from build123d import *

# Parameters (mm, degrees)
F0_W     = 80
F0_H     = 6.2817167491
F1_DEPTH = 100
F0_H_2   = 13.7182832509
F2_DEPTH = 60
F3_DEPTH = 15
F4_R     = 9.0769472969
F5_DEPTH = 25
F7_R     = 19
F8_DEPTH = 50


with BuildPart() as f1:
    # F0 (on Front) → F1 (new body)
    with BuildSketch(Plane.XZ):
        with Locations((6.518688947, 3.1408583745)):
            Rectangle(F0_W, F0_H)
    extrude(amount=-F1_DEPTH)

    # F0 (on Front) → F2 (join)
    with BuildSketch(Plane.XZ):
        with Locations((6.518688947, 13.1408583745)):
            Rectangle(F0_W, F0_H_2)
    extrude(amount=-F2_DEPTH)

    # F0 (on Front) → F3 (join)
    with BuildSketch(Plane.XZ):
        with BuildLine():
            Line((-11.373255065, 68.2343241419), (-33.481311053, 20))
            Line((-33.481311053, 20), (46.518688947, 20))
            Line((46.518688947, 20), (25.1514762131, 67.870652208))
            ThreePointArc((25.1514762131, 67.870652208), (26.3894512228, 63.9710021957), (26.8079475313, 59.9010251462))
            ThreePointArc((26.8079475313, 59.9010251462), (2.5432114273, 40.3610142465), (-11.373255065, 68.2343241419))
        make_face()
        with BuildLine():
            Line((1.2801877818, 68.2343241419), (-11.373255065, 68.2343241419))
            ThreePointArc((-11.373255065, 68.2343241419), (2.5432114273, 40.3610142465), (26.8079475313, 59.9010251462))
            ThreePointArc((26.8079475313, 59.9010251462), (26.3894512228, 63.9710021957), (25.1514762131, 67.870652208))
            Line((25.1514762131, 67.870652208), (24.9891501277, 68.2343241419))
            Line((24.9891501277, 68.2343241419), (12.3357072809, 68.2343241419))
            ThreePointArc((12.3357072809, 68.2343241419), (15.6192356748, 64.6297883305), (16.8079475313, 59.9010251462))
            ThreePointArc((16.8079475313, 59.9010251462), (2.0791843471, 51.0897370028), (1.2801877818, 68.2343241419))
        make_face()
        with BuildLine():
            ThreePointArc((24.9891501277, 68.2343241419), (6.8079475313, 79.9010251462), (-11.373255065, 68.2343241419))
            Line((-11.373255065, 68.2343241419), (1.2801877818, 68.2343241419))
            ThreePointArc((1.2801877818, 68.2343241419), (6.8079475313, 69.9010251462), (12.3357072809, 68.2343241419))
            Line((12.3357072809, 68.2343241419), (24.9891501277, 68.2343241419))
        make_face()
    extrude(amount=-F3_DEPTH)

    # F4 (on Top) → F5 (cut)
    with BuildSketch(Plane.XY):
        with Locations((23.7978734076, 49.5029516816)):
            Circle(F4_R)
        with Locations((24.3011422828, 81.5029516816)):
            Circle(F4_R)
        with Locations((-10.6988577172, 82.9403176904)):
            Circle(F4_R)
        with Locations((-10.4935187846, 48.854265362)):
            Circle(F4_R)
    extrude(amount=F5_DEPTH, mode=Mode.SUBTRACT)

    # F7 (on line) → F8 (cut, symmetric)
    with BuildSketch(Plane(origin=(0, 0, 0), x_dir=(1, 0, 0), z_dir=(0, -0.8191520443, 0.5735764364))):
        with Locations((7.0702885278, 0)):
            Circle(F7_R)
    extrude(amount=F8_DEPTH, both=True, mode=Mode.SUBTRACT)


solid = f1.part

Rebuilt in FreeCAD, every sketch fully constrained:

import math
import FreeCAD as App
import Part
import Sketcher
Q = App.Units.Quantity

doc = App.newDocument("Part")
body = doc.addObject("PartDesign::Body", "Body")

# Sketch on XZ plane
sketch1 = doc.addObject("Sketcher::SketchObject", "Sketch")
body.addObject(sketch1)
sketch1.AttachmentSupport = (doc.XZ_Plane, [""])
sketch1.MapMode = "FlatFace"
sketch1.addGeometry(Part.LineSegment(App.Vector(-33, 6, 0), App.Vector(-33, 0, 0)), False)
sketch1.addGeometry(Part.LineSegment(App.Vector(-33, 0, 0), App.Vector(47, 0, 0)), False)
sketch1.addGeometry(Part.LineSegment(App.Vector(47, 0, 0), App.Vector(47, 6, 0)), False)
sketch1.addGeometry(Part.LineSegment(App.Vector(47, 6, 0), App.Vector(-33, 6, 0)), False)
sketch1.addConstraint(Sketcher.Constraint("Coincident", 0, 2, 1, 1))
sketch1.addConstraint(Sketcher.Constraint("Coincident", 1, 2, 2, 1))
sketch1.addConstraint(Sketcher.Constraint("Coincident", 2, 2, 3, 1))
sketch1.addConstraint(Sketcher.Constraint("Coincident", 3, 2, 0, 1))
sketch1.addConstraint(Sketcher.Constraint("Vertical", 0))
sketch1.addConstraint(Sketcher.Constraint("Horizontal", 1))
sketch1.addConstraint(Sketcher.Constraint("Vertical", 2))
sketch1.addConstraint(Sketcher.Constraint("Horizontal", 3))
sketch1.addConstraint(Sketcher.Constraint("PointOnObject", 0, 2, -1))
sketch1.addConstraint(Sketcher.Constraint("DistanceX", 1, 1, 1, 2, Q("80 mm")))
sketch1.addConstraint(Sketcher.Constraint("DistanceY", 0, 2, 0, 1, Q("6.281717 mm")))
sketch1.addConstraint(Sketcher.Constraint("DistanceX", 0, 2, -1, 1, Q("33.481311 mm")))
pad1 = doc.addObject("PartDesign::Pad", "Pad")
body.addObject(pad1)
pad1.Profile = sketch1
pad1.Length = 100
pad1.Reversed = True

# Sketch on XZ plane
sketch2 = doc.addObject("Sketcher::SketchObject", "Sketch001")
body.addObject(sketch2)
sketch2.AttachmentSupport = (doc.XZ_Plane, [""])
sketch2.MapMode = "FlatFace"
sketch2.addGeometry(Part.LineSegment(App.Vector(-33, 20, 0), App.Vector(-33, 6, 0)), False)
sketch2.addGeometry(Part.LineSegment(App.Vector(-33, 6, 0), App.Vector(47, 6, 0)), False)
sketch2.addGeometry(Part.LineSegment(App.Vector(47, 6, 0), App.Vector(47, 20, 0)), False)
sketch2.addGeometry(Part.LineSegment(App.Vector(47, 20, 0), App.Vector(-33, 20, 0)), False)
sketch2.addConstraint(Sketcher.Constraint("Coincident", 0, 2, 1, 1))
sketch2.addConstraint(Sketcher.Constraint("Coincident", 1, 2, 2, 1))
sketch2.addConstraint(Sketcher.Constraint("Coincident", 2, 2, 3, 1))
sketch2.addConstraint(Sketcher.Constraint("Coincident", 3, 2, 0, 1))
sketch2.addConstraint(Sketcher.Constraint("Vertical", 0))
sketch2.addConstraint(Sketcher.Constraint("Horizontal", 1))
sketch2.addConstraint(Sketcher.Constraint("Vertical", 2))
sketch2.addConstraint(Sketcher.Constraint("Horizontal", 3))
sketch2.addConstraint(Sketcher.Constraint("DistanceX", 1, 1, 1, 2, Q("80 mm")))
sketch2.addConstraint(Sketcher.Constraint("DistanceY", -1, 1, 2, 2, Q("20 mm")))
sketch2.addConstraint(Sketcher.Constraint("DistanceY", 0, 2, 0, 1, Q("13.718283 mm")))
sketch2.addConstraint(Sketcher.Constraint("DistanceX", 0, 2, -1, 1, Q("33.481311 mm")))
pad2 = doc.addObject("PartDesign::Pad", "Pad001")
body.addObject(pad2)
pad2.Profile = sketch2
pad2.Length = 60
pad2.Reversed = True

# Sketch on XZ plane
sketch3 = doc.addObject("Sketcher::SketchObject", "Sketch002")
body.addObject(sketch3)
sketch3.AttachmentSupport = (doc.XZ_Plane, [""])
sketch3.MapMode = "FlatFace"
sketch3.addGeometry(Part.LineSegment(App.Vector(-11.37, 68.23, 0), App.Vector(-33.48, 20, 0)), False)
sketch3.addGeometry(Part.LineSegment(App.Vector(-33.48, 20, 0), App.Vector(46.52, 20, 0)), False)
sketch3.addGeometry(Part.LineSegment(App.Vector(46.52, 20, 0), App.Vector(25.15, 67.87, 0)), False)
sketch3.addGeometry(Part.LineSegment(App.Vector(25.15, 67.87, 0), App.Vector(24.99, 68.23, 0)), False)
sketch3.addGeometry(Part.ArcOfCircle(Part.Circle(App.Vector(6.81, 59.9, 0), App.Vector(0, 0, 1), 20), math.radians(25), math.radians(155)), False)
sketch3.addGeometry(Part.ArcOfCircle(Part.Circle(App.Vector(6.81, 59.9, 0), App.Vector(0, 0, 1), 10), math.radians(0), math.radians(56)), False)
sketch3.addGeometry(Part.ArcOfCircle(Part.Circle(App.Vector(6.81, 59.9, 0), App.Vector(0, 0, 1), 10), math.radians(124), math.radians(360)), False)
sketch3.addGeometry(Part.ArcOfCircle(Part.Circle(App.Vector(6.81, 59.9, 0), App.Vector(0, 0, 1), 10), math.radians(56), math.radians(124)), False)
sketch3.addConstraint(Sketcher.Constraint("Coincident", 0, 2, 1, 1))
sketch3.addConstraint(Sketcher.Constraint("Coincident", 1, 2, 2, 1))
sketch3.addConstraint(Sketcher.Constraint("Coincident", 2, 2, 3, 1))
sketch3.addConstraint(Sketcher.Constraint("Coincident", 3, 2, 4, 1))
sketch3.addConstraint(Sketcher.Constraint("Tangent", 4, 2, 0, 1))
sketch3.addConstraint(Sketcher.Constraint("Tangent", 5, 1, 6, 2))
sketch3.addConstraint(Sketcher.Constraint("Tangent", 6, 1, 7, 2))
sketch3.addConstraint(Sketcher.Constraint("Tangent", 7, 1, 5, 2))
sketch3.addConstraint(Sketcher.Constraint("Horizontal", 1))
sketch3.addConstraint(Sketcher.Constraint("Coincident", 5, 3, 4, 3))
sketch3.addConstraint(Sketcher.Constraint("Parallel", 2, 3))
sketch3.addConstraint(Sketcher.Constraint("Horizontal", 3, 2, 4, 2))
sketch3.addConstraint(Sketcher.Constraint("Horizontal", 7, 3, 5, 1))
sketch3.addConstraint(Sketcher.Constraint("Horizontal", 4, 2, 6, 1))
sketch3.addConstraint(Sketcher.Constraint("Horizontal", 6, 1, 7, 1))
sketch3.addConstraint(Sketcher.Constraint("Radius", 4, Q("20 mm")))
sketch3.addConstraint(Sketcher.Constraint("Radius", 5, Q("10 mm")))
sketch3.addConstraint(Sketcher.Constraint("DistanceX", 1, 1, 1, 2, Q("80 mm")))
sketch3.addConstraint(Sketcher.Constraint("DistanceY", -1, 1, 0, 2, Q("20 mm")))
sketch3.addConstraint(Sketcher.Constraint("DistanceY", 4, 3, 3, 2, Q("8.333299 mm")))
sketch3.addConstraint(Sketcher.Constraint("Distance", 2, Q("52.422868 mm")))
sketch3.addConstraint(Sketcher.Constraint("DistanceX", 0, 2, -1, 1, Q("33.481311 mm")))
sketch3.addConstraint(Sketcher.Constraint("DistanceX", -1, 1, 3, 2, Q("24.98915 mm")))
pad3 = doc.addObject("PartDesign::Pad", "Pad002")
body.addObject(pad3)
pad3.Profile = sketch3
pad3.Length = 15
pad3.Reversed = True

# Sketch on XY plane
sketch4 = doc.addObject("Sketcher::SketchObject", "Sketch003")
body.addObject(sketch4)
sketch4.AttachmentSupport = (doc.XY_Plane, [""])
sketch4.MapMode = "FlatFace"
sketch4.addGeometry(Part.Circle(App.Vector(24, 50, 0), App.Vector(0, 0, 1), 9), False)
sketch4.addGeometry(Part.Circle(App.Vector(24, 82, 0), App.Vector(0, 0, 1), 9), False)
sketch4.addGeometry(Part.Circle(App.Vector(-11, 83, 0), App.Vector(0, 0, 1), 9), False)
sketch4.addGeometry(Part.Circle(App.Vector(-10, 49, 0), App.Vector(0, 0, 1), 9), False)
sketch4.addConstraint(Sketcher.Constraint("Equal", 0, 1))
sketch4.addConstraint(Sketcher.Constraint("Equal", 1, 2))
sketch4.addConstraint(Sketcher.Constraint("Equal", 2, 3))
sketch4.addConstraint(Sketcher.Constraint("DistanceY", 0, 3, 1, 3, Q("32 mm")))
sketch4.addConstraint(Sketcher.Constraint("DistanceX", 2, 3, 1, 3, Q("35 mm")))
sketch4.addConstraint(Sketcher.Constraint("Diameter", 0, Q("18.153895 mm")))
sketch4.addConstraint(Sketcher.Constraint("DistanceY", -1, 1, 0, 3, Q("49.502952 mm")))
sketch4.addConstraint(Sketcher.Constraint("DistanceX", 3, 3, -1, 1, Q("10.493519 mm")))
sketch4.addConstraint(Sketcher.Constraint("DistanceX", 0, 3, 1, 3, Q("0.503269 mm")))
sketch4.addConstraint(Sketcher.Constraint("DistanceX", 2, 3, 3, 3, Q("0.205339 mm")))
sketch4.addConstraint(Sketcher.Constraint("DistanceY", -1, 1, 2, 3, Q("82.940318 mm")))
sketch4.addConstraint(Sketcher.Constraint("DistanceY", -1, 1, 3, 3, Q("48.854265 mm")))
pocket1 = doc.addObject("PartDesign::Pocket", "Pocket")
body.addObject(pocket1)
pocket1.Profile = sketch4
pocket1.Length = 25
pocket1.Reversed = True

# Sketch on an angled plane
sketch5 = doc.addObject("Sketcher::SketchObject", "Sketch004")
body.addObject(sketch5)
sketch5.Placement = App.Placement(App.Vector(0, 0, 0), App.Rotation(App.Vector(1, 0, 0), App.Vector(0, 0.573576436, 0.819152044), App.Vector(0, -0.819152044, 0.573576436), "ZXY"))
sketch5.addGeometry(Part.Circle(App.Vector(7, 0, 0), App.Vector(0, 0, 1), 19), False)
sketch5.addConstraint(Sketcher.Constraint("PointOnObject", 0, 3, -1))
sketch5.addConstraint(Sketcher.Constraint("Diameter", 0, Q("38 mm")))
sketch5.addConstraint(Sketcher.Constraint("DistanceX", -1, 1, 0, 3, Q("7.070289 mm")))
pocket2 = doc.addObject("PartDesign::Pocket", "Pocket001")
body.addObject(pocket2)
pocket2.Profile = sketch5
pocket2.Length = 100
pocket2.Midplane = True

doc.recompute()
